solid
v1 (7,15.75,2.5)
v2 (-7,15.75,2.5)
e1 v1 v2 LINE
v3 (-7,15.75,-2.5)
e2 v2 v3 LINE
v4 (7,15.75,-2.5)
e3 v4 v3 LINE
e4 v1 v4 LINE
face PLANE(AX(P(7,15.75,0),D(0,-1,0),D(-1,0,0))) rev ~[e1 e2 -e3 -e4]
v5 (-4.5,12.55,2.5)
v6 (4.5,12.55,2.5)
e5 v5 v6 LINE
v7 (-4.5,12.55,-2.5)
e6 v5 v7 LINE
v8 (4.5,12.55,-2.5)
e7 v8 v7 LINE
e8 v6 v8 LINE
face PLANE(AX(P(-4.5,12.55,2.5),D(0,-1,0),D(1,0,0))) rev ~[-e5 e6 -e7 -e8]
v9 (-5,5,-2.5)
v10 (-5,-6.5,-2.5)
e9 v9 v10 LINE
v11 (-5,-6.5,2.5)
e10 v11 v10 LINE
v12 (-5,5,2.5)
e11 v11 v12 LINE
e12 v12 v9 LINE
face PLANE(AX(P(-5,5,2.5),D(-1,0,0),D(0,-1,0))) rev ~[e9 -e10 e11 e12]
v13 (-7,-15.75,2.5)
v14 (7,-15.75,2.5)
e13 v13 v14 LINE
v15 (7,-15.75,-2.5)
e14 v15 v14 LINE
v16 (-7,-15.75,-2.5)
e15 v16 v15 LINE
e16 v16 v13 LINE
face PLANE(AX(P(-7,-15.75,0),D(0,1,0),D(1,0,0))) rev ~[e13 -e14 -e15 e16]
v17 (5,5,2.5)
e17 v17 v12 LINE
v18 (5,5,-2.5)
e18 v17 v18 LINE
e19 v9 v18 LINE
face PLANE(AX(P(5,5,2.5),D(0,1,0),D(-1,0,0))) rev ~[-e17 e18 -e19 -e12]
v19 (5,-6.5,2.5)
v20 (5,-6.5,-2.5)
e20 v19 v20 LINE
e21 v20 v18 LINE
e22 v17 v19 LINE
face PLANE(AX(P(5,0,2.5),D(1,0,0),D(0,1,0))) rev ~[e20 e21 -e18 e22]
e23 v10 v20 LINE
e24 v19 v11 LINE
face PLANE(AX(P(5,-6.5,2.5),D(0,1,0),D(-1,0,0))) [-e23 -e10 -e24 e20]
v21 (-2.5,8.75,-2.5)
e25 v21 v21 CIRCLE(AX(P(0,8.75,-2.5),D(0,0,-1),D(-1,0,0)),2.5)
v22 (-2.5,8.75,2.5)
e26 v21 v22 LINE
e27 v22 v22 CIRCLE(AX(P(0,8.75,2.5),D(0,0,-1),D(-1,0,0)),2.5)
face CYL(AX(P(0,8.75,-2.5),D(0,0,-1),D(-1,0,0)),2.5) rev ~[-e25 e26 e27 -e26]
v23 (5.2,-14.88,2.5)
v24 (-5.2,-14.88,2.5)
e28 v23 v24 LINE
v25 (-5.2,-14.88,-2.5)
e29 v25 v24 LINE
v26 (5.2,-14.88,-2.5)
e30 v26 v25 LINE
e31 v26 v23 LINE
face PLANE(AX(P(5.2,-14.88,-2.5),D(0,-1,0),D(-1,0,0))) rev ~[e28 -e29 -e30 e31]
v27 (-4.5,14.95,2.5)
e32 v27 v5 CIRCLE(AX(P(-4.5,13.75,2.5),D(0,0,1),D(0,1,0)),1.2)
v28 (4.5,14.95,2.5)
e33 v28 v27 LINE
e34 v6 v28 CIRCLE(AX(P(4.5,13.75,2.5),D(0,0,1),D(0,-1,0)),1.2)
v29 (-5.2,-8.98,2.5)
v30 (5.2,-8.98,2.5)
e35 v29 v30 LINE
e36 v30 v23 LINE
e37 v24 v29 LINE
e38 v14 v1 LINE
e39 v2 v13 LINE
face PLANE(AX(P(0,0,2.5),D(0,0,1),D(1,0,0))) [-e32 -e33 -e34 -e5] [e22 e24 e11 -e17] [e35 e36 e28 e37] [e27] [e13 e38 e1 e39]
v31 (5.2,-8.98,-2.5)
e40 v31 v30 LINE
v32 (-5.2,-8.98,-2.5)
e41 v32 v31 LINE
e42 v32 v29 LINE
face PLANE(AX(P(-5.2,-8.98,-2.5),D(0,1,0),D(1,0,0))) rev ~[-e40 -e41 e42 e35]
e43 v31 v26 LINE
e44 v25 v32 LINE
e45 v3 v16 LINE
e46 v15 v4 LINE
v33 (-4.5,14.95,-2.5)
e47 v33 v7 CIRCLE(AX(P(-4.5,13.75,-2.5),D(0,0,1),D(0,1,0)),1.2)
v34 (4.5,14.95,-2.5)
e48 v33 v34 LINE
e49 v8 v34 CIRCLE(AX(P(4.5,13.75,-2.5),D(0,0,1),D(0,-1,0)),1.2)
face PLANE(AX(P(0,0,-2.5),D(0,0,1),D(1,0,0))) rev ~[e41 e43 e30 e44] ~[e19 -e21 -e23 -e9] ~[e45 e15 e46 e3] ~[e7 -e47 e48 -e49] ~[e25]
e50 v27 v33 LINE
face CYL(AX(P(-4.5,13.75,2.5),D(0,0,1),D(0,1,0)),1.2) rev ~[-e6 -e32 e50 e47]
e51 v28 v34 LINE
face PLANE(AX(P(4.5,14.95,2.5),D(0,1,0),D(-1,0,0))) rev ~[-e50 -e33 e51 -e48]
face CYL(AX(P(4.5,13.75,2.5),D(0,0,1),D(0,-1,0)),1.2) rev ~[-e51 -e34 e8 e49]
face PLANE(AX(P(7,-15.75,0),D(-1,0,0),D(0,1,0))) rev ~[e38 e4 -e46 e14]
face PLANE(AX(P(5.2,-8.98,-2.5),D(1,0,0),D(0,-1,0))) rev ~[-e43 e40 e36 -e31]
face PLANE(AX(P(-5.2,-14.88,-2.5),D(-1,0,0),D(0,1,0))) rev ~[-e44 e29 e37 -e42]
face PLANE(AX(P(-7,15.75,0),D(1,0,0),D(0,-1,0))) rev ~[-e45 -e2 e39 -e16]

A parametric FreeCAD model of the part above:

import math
import FreeCAD as App
import Part
import Sketcher

V = App.Vector


def add_polygon(sketch, points):
    """Adds a closed chain of lines whose ends are joined by coincident constraints."""
    first, n = sketch.GeometryCount, len(points)
    for a, b in zip(points, points[1:] + points[:1]):
        sketch.addGeometry(Part.LineSegment(App.Vector(*a, 0), App.Vector(*b, 0)), False)
    for i in range(n):
        sketch.addConstraint(Sketcher.Constraint("Coincident", first + i, 2, first + (i + 1) % n, 1))

doc = App.newDocument("Part")
params = doc.addObject("Spreadsheet::Sheet", "Params")
for row, (alias, value) in enumerate([
    ("sketch1_width", "14 mm"),
    ("sketch1_height", "31.5 mm"),
    ("pad1_length", "5 mm"),
    ("sketch2_diameter", "5 mm"),
    ("sketch3_width", "10.4 mm"),
    ("sketch3_height", "5.9 mm"),
    ("sketch4_radius", "1.2 mm"),
    ("sketch4_width", "9 mm"),
    ("sketch5_width", "10 mm"),
], start=1):
    params.set(f"A{row}", alias)
    params.set(f"B{row}", "=" + value)
    params.setAlias(f"B{row}", alias)

body = doc.addObject("PartDesign::Body", "Body")

# Sketch on XY plane
sketch1 = body.newObject("Sketcher::SketchObject", "Sketch")
sketch1.AttachmentSupport = (doc.getObject("XY_Plane"), [""])
sketch1.MapMode = "FlatFace"
add_polygon(sketch1, [(-7, 16), (-7, -16), (7, -16), (7, 16)])  # lines 0-3
sketch1.addConstraint([
    Sketcher.Constraint("Vertical", 0),
    Sketcher.Constraint("Horizontal", 1),
    Sketcher.Constraint("Vertical", 2),
    Sketcher.Constraint("Horizontal", 3),
    Sketcher.Constraint("Symmetric", 0, 2, 2, 2, -1, 1),
    Sketcher.Constraint("DistanceX", 1, 1, 1, 2, 14.0),
    Sketcher.Constraint("DistanceY", 0, 2, 0, 1, 31.5),
])
sketch1.setExpression("Constraints[9]", "Params.sketch1_width")
sketch1.setExpression("Constraints[10]", "Params.sketch1_height")
pad1 = body.newObject("PartDesign::Pad", "Pad")
pad1.Profile = sketch1
pad1.setExpression("Length", "Params.pad1_length")
pad1.Midplane = True

# Sketch on XY plane
sketch2 = body.newObject("Sketcher::SketchObject", "Sketch001")
sketch2.AttachmentSupport = (doc.getObject("XY_Plane"), [""])
sketch2.MapMode = "FlatFace"
sketch2.AttachmentOffset = App.Placement(V(0, 0, -2.5), App.Rotation())
sketch2.addGeometry(Part.Circle(V(0, 8.8, 0), V(0, 0, 1), 2.5), False)
sketch2.addConstraint([
    Sketcher.Constraint("PointOnObject", 0, 3, -2),
    Sketcher.Constraint("Diameter", 0, 5.0),
    Sketcher.Constraint("DistanceY", -1, 1, 0, 3, 8.75),
])
sketch2.setExpression("Constraints[1]", "Params.sketch2_diameter")
pocket1 = body.newObject("PartDesign::Pocket", "Pocket")
pocket1.Profile = sketch2
pocket1.Type = "UpToFirst"
pocket1.Reversed = True

# Sketch on XY plane
sketch3 = body.newObject("Sketcher::SketchObject", "Sketch002")
sketch3.AttachmentSupport = (doc.getObject("XY_Plane"), [""])
sketch3.MapMode = "FlatFace"
sketch3.AttachmentOffset = App.Placement(V(0, 0, -2.5), App.Rotation())
add_polygon(sketch3, [(5, -9), (5, -15), (-5, -15), (-5, -9)])  # lines 0-3
sketch3.addConstraint([
    Sketcher.Constraint("Vertical", 0),
    Sketcher.Constraint("Horizontal", 1),
    Sketcher.Constraint("Vertical", 2),
    Sketcher.Constraint("Horizontal", 3),
    Sketcher.Constraint("DistanceX", 1, 2, 1, 1, 10.4),
    Sketcher.Constraint("DistanceY", 0, 2, 0, 1, 5.9),
    Sketcher.Constraint("DistanceX", -1, 1, 0, 2, 5.2),
    Sketcher.Constraint("DistanceY", 0, 2, -1, 1, 14.88),
])
sketch3.setExpression("Constraints[8]", "Params.sketch3_width")
sketch3.setExpression("Constraints[9]", "Params.sketch3_height")
pocket2 = body.newObject("PartDesign::Pocket", "Pocket001")
pocket2.Profile = sketch3
pocket2.Type = "UpToFirst"
pocket2.Reversed = True

# Sketch on XY plane
sketch4 = body.newObject("Sketcher::SketchObject", "Sketch003")
sketch4.AttachmentSupport = (doc.getObject("XY_Plane"), [""])
sketch4.MapMode = "FlatFace"
sketch4.AttachmentOffset = App.Placement(V(0, 0, 2.5), App.Rotation())
sketch4.addGeometry([
    Part.ArcOfCircle(Part.Circle(V(-4.5, 13.8, 0), V(0, 0, 1), 1.2), math.radians(90), math.radians(270)),
    Part.LineSegment(V(-4.5, 12.6, 0), V(4.5, 12.6, 0)),
    Part.ArcOfCircle(Part.Circle(V(4.5, 13.8, 0), V(0, 0, 1), 1.2), math.radians(-90), math.radians(90)),
    Part.LineSegment(V(4.5, 14.9, 0), V(-4.5, 14.9, 0)),
], False)
sketch4.addConstraint([
    Sketcher.Constraint("Tangent", 0, 2, 1, 1),
    Sketcher.Constraint("Tangent", 1, 2, 2, 1),
    Sketcher.Constraint("Tangent", 2, 2, 3, 1),
    Sketcher.Constraint("Tangent", 3, 2, 0, 1),
    Sketcher.Constraint("Horizontal", 1),
    Sketcher.Constraint("Horizontal", 3),
    Sketcher.Constraint("Radius", 0, 1.2),
    Sketcher.Constraint("DistanceX", 1, 1, 1, 2, 9.0),
    Sketcher.Constraint("DistanceX", 0, 3, -1, 1, 4.5),
    Sketcher.Constraint("DistanceY", -1, 1, 0, 3, 13.75),
])
sketch4.setExpression("Constraints[6]", "Params.sketch4_radius")
sketch4.setExpression("Constraints[7]", "Params.sketch4_width")
pocket3 = body.newObject("PartDesign::Pocket", "Pocket002")
pocket3.Profile = sketch4
pocket3.Type = "UpToFirst"

# Sketch on XY plane
sketch5 = body.newObject("Sketcher::SketchObject", "Sketch004")
sketch5.AttachmentSupport = (doc.getObject("XY_Plane"), [""])
sketch5.MapMode = "FlatFace"
sketch5.AttachmentOffset = App.Placement(V(0, 0, 2.5), App.Rotation())
add_polygon(sketch5, [(5, -6), (5, 5), (-5, 5), (-5, -6)])  # lines 0-3
sketch5.addConstraint([
    Sketcher.Constraint("Vertical", 0),
    Sketcher.Constraint("Horizontal", 1),
    Sketcher.Constraint("Vertical", 2),
    Sketcher.Constraint("Horizontal", 3),
    Sketcher.Constraint("DistanceX", 1, 2, 1, 1, 10.0),
    Sketcher.Constraint("DistanceX", -1, 1, 0, 2, 5.0),
    Sketcher.Constraint("DistanceY", -1, 1, 0, 2, 5.0),
    Sketcher.Constraint("DistanceY", 2, 2, -1, 1, 6.5),
])
sketch5.setExpression("Constraints[8]", "Params.sketch5_width")
pocket4 = body.newObject("PartDesign::Pocket", "Pocket003")
pocket4.Profile = sketch5
pocket4.Type = "UpToFirst"

doc.recompute()
